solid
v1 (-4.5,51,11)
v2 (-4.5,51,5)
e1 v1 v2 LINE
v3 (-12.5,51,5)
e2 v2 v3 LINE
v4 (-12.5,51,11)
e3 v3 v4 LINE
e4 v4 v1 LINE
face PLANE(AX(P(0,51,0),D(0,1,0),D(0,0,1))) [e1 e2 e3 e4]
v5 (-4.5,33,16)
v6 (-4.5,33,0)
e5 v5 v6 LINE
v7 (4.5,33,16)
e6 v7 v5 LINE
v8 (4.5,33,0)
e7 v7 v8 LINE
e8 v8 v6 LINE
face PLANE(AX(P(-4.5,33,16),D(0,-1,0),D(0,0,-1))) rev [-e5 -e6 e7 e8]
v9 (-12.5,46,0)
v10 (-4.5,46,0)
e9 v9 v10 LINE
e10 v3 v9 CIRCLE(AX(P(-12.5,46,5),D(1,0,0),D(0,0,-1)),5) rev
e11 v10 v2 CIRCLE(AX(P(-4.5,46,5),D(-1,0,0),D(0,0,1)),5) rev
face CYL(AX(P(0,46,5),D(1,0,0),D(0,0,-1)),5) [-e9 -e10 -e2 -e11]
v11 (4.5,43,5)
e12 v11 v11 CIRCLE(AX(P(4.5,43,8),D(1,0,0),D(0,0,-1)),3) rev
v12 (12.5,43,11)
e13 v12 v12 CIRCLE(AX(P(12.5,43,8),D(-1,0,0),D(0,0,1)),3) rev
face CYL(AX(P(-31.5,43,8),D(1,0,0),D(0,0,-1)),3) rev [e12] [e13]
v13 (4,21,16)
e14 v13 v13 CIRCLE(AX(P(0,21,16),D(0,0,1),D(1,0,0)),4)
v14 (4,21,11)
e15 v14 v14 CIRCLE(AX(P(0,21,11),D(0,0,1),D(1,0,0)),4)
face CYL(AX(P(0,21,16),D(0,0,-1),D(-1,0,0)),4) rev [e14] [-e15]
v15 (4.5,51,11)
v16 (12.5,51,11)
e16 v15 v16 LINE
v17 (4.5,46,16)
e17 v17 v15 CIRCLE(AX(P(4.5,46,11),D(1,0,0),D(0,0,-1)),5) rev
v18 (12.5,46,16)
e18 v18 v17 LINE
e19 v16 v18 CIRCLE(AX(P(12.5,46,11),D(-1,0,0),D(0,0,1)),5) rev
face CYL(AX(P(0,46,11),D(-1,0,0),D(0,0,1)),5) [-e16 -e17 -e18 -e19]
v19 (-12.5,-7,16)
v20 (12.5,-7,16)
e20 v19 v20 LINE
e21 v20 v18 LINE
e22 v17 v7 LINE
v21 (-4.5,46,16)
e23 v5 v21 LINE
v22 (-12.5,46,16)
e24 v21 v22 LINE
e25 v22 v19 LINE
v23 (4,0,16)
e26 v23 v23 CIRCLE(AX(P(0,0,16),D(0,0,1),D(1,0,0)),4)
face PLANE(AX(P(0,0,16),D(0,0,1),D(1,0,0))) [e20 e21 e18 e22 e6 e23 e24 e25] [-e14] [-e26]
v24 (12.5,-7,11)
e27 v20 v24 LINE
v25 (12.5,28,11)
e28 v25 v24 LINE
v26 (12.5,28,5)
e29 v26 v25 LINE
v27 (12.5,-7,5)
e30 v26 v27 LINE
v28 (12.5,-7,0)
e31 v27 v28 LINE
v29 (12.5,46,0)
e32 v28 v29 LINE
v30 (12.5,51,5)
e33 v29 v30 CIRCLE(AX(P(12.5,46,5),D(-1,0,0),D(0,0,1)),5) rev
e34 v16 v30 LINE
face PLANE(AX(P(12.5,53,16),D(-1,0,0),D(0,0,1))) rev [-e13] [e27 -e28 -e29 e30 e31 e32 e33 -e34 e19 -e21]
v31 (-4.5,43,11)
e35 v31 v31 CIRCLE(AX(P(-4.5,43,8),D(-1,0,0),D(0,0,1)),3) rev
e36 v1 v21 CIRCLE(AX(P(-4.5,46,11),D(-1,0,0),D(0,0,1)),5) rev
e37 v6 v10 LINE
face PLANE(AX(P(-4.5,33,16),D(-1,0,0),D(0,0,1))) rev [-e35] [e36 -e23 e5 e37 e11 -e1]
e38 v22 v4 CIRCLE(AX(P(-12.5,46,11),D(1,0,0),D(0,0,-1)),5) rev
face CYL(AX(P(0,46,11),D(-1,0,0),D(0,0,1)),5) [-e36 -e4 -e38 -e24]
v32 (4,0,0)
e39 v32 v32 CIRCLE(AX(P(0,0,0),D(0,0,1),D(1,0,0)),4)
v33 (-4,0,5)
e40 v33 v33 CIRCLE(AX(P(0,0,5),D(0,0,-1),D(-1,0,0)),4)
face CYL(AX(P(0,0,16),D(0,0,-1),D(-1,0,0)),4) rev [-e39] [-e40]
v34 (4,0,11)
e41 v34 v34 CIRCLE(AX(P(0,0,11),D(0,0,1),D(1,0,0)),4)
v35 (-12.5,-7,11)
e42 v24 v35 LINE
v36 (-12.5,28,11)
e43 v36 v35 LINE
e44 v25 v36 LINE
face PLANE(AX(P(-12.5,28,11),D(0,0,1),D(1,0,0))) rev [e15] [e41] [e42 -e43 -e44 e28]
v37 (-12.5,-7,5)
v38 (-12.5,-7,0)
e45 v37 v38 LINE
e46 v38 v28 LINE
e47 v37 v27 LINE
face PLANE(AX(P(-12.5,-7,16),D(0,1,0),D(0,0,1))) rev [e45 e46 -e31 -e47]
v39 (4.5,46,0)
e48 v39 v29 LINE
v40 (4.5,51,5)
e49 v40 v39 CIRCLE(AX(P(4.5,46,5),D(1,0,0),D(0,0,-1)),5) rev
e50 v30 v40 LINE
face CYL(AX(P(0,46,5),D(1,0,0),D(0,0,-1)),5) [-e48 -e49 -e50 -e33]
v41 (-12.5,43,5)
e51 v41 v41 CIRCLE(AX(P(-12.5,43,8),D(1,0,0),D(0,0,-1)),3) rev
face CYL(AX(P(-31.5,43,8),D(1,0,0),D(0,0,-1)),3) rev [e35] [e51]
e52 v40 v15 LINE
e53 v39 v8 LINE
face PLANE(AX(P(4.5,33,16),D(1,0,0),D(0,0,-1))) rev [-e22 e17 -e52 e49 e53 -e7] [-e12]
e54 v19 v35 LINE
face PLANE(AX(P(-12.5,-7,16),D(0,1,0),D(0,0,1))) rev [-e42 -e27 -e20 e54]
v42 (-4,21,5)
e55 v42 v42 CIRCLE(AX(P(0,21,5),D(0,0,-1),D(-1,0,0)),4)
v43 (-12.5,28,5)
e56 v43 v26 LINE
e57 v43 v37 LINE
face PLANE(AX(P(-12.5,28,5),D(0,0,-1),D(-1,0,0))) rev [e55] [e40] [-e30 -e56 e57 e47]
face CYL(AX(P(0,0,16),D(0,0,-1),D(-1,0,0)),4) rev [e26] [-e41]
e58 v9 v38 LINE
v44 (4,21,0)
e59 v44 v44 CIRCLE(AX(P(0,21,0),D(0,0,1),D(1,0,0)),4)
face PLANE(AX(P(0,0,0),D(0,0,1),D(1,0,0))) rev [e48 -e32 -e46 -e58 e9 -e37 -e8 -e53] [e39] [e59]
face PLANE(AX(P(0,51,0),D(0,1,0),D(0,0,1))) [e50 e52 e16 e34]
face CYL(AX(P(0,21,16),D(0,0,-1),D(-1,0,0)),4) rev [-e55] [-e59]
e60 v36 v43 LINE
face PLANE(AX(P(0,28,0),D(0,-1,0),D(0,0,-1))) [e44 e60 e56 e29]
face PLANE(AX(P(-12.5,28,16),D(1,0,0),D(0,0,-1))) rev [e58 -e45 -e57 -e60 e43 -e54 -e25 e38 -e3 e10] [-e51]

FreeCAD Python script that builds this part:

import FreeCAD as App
import Part
import Sketcher

V = App.Vector


def edges_at(feature, points):
    """Names of the edges that pass closest to the given points."""
    edges = feature.Shape.Edges
    near = lambda p: min(range(len(edges)), key=lambda i: edges[i].distToShape(Part.Vertex(*p))[0])
    return sorted({f"Edge{near(p) + 1}" for p in points})


def add_polygon(sketch, points):
    """Adds a closed chain of lines whose ends are joined by coincident constraints."""
    first, n = sketch.GeometryCount, len(points)
    for a, b in zip(points, points[1:] + points[:1]):
        sketch.addGeometry(Part.LineSegment(App.Vector(*a, 0), App.Vector(*b, 0)), False)
    for i in range(n):
        sketch.addConstraint(Sketcher.Constraint("Coincident", first + i, 2, first + (i + 1) % n, 1))

doc = App.newDocument("Part")
body = doc.addObject("PartDesign::Body", "Body")

# Sketch on XY plane
sketch1 = body.newObject("Sketcher::SketchObject", "Sketch")
sketch1.AttachmentSupport = (doc.getObject("XY_Plane"), [""])
sketch1.MapMode = "FlatFace"
add_polygon(sketch1, [(-12.5, -7), (12.5, -7), (12.5, 53), (4.5, 53), (4.5, 33), (-4.5, 33), (-4.5, 53), (-12.5, 53)])  # lines 0-7
sketch1.addGeometry(Part.Circle(V(0, 0, 0), V(0, 0, 1), 4), False)  # 8
sketch1.addGeometry(Part.Circle(V(0, 21, 0), V(0, 0, 1), 4), False)  # 9
sketch1.addConstraint(Sketcher.Constraint("Horizontal", 0))
sketch1.addConstraint(Sketcher.Constraint("Vertical", 1))
sketch1.addConstraint(Sketcher.Constraint("Horizontal", 2))
sketch1.addConstraint(Sketcher.Constraint("Vertical", 3))
sketch1.addConstraint(Sketcher.Constraint("Horizontal", 4))
sketch1.addConstraint(Sketcher.Constraint("Vertical", 5))
sketch1.addConstraint(Sketcher.Constraint("Horizontal", 6))
sketch1.addConstraint(Sketcher.Constraint("Vertical", 7))
sketch1.addConstraint(Sketcher.Constraint("Coincident", 8, 3, -1, 1))
sketch1.addConstraint(Sketcher.Constraint("Equal", 8, 9))
sketch1.addConstraint(Sketcher.Constraint("Symmetric", 2, 2, 5, 2, -2))
sketch1.addConstraint(Sketcher.Constraint("PointOnObject", 9, 3, -2))
sketch1.addConstraint(Sketcher.Constraint("Equal", 2, 6))
sketch1.addConstraint(Sketcher.Constraint("Diameter", 8, 8.0))
sketch1.addConstraint(Sketcher.Constraint("DistanceX", 0, 1, 0, 2, 25.0))
sketch1.addConstraint(Sketcher.Constraint("DistanceX", 2, 2, 2, 1, 8.0))
sketch1.addConstraint(Sketcher.Constraint("DistanceY", 1, 1, 1, 2, 60.0))
sketch1.addConstraint(Sketcher.Constraint("DistanceY", 3, 2, 3, 1, 20.0))
sketch1.addConstraint(Sketcher.Constraint("DistanceY", -1, 1, 9, 3, 21.0))
sketch1.addConstraint(Sketcher.Constraint("DistanceY", 0, 2, -1, 1, 7.0))
pad1 = body.newObject("PartDesign::Pad", "Pad")
pad1.Profile = sketch1
pad1.Length = 16

# Sketch on XZ plane
sketch2 = body.newObject("Sketcher::SketchObject", "Sketch001")
sketch2.AttachmentSupport = (doc.getObject("XZ_Plane"), [""])
sketch2.MapMode = "FlatFace"
sketch2.AttachmentOffset = App.Placement(V(0, 0, 7), App.Rotation())
add_polygon(sketch2, [(-12, 11), (-12, 5), (12, 5), (12, 11)])  # lines 0-3
sketch2.addConstraint(Sketcher.Constraint("Vertical", 0))
sketch2.addConstraint(Sketcher.Constraint("Horizontal", 1))
sketch2.addConstraint(Sketcher.Constraint("Vertical", 2))
sketch2.addConstraint(Sketcher.Constraint("Horizontal", 3))
sketch2.addConstraint(Sketcher.Constraint("DistanceX", 1, 1, 1, 2, 25.0))
sketch2.addConstraint(Sketcher.Constraint("DistanceY", 0, 2, 0, 1, 6.0))
sketch2.addConstraint(Sketcher.Constraint("DistanceY", -1, 1, 0, 2, 5.0))
sketch2.addConstraint(Sketcher.Constraint("DistanceX", 0, 2, -1, 1, 12.5))
pocket1 = body.newObject("PartDesign::Pocket", "Pocket")
pocket1.Profile = sketch2
pocket1.Length = 35

# Sketch on YZ plane
sketch3 = body.newObject("Sketcher::SketchObject", "Sketch002")
sketch3.AttachmentSupport = (doc.getObject("YZ_Plane"), [""])
sketch3.MapMode = "FlatFace"
sketch3.AttachmentOffset = App.Placement(V(0, 0, 4.5), App.Rotation())
sketch3.addGeometry(Part.Circle(V(43, 8, 0), V(0, 0, 1), 3), False)
sketch3.addConstraint(Sketcher.Constraint("Diameter", 0, 6.0))
sketch3.addConstraint(Sketcher.Constraint("DistanceX", -1, 1, 0, 3, 43.0))
sketch3.addConstraint(Sketcher.Constraint("DistanceY", -1, 1, 0, 3, 8.0))
pocket2 = body.newObject("PartDesign::Pocket", "Pocket001")
pocket2.Profile = sketch3
pocket2.Type = "ThroughAll"
pocket2.Midplane = True

# Sketch on XZ plane
sketch4 = body.newObject("Sketcher::SketchObject", "Sketch003")
sketch4.AttachmentSupport = (doc.getObject("XZ_Plane"), [""])
sketch4.MapMode = "FlatFace"
sketch4.AttachmentOffset = App.Placement(V(0, 0, -53), App.Rotation())
add_polygon(sketch4, [(-23, -5), (-23, 24), (23, 24), (23, -5)])  # lines 0-3
sketch4.addConstraint(Sketcher.Constraint("Vertical", 0))
sketch4.addConstraint(Sketcher.Constraint("Horizontal", 1))
sketch4.addConstraint(Sketcher.Constraint("Vertical", 2))
sketch4.addConstraint(Sketcher.Constraint("Horizontal", 3))
sketch4.addConstraint(Sketcher.Constraint("DistanceX", 1, 1, 1, 2, 46.387108))
sketch4.addConstraint(Sketcher.Constraint("DistanceY", 0, 1, 0, 2, 28.761743))
sketch4.addConstraint(Sketcher.Constraint("DistanceY", 2, 2, -1, 1, 5.033959))
sketch4.addConstraint(Sketcher.Constraint("DistanceX", 0, 2, -1, 1, 23.210445))
pocket3 = body.newObject("PartDesign::Pocket", "Pocket002")
pocket3.Profile = sketch4
pocket3.Length = 2
pocket3.Reversed = True
doc.recompute()

fillet = body.newObject("PartDesign::Fillet", "Fillet")
fillet.Base = (pocket3, edges_at(pocket3, [
    (8.5, 51, 16),
    (-8.5, 51, 16),
    (8.5, 51, 0),
    (-8.5, 51, 0),
]))
fillet.Radius = 5

doc.recompute()
